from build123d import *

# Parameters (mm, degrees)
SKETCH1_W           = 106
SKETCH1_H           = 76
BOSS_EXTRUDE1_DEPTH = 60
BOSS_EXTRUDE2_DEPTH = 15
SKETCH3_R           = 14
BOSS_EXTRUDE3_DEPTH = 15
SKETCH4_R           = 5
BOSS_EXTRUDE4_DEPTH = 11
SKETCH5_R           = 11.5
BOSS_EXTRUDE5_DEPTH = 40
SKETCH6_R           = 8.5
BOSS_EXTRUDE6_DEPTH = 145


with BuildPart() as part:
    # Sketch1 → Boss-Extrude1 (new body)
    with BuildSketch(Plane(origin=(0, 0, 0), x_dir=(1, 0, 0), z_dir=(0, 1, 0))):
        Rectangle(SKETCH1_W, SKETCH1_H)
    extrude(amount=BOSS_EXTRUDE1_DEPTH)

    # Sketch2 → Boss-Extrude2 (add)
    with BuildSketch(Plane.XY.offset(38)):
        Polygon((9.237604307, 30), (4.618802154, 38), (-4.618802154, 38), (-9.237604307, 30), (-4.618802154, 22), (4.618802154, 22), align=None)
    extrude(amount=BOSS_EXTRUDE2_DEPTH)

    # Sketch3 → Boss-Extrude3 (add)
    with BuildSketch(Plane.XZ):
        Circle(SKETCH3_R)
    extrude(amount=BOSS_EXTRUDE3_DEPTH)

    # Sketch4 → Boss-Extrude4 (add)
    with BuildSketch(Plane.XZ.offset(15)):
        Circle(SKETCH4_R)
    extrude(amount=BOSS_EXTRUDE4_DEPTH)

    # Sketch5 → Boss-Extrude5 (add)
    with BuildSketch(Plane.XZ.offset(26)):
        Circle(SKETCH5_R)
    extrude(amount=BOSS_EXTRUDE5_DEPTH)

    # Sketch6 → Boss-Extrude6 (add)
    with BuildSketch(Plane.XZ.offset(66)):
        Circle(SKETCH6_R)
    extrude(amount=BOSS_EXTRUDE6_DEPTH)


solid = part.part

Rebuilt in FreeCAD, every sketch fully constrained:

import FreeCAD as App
import Part
import Sketcher
Q = App.Units.Quantity

doc = App.newDocument("Part")
body = doc.addObject("PartDesign::Body", "Body")

# Sketch on XZ plane
sketch1 = body.newObject("Sketcher::SketchObject", "Sketch")
sketch1.AttachmentSupport = (doc.getObject("XZ_Plane"), [""])
sketch1.MapMode = "FlatFace"
sketch1.addGeometry(Part.LineSegment(App.Vector(-53, -38, 0), App.Vector(-53, 38, 0)), False)
sketch1.addGeometry(Part.LineSegment(App.Vector(-53, 38, 0), App.Vector(53, 38, 0)), False)
sketch1.addGeometry(Part.LineSegment(App.Vector(53, 38, 0), App.Vector(53, -38, 0)), False)
sketch1.addGeometry(Part.LineSegment(App.Vector(53, -38, 0), App.Vector(-53, -38, 0)), False)
sketch1.addConstraint(Sketcher.Constraint("Coincident", 0, 2, 1, 1))
sketch1.addConstraint(Sketcher.Constraint("Coincident", 1, 2, 2, 1))
sketch1.addConstraint(Sketcher.Constraint("Coincident", 2, 2, 3, 1))
sketch1.addConstraint(Sketcher.Constraint("Coincident", 3, 2, 0, 1))
sketch1.addConstraint(Sketcher.Constraint("Vertical", 0))
sketch1.addConstraint(Sketcher.Constraint("Horizontal", 1))
sketch1.addConstraint(Sketcher.Constraint("Vertical", 2))
sketch1.addConstraint(Sketcher.Constraint("Horizontal", 3))
sketch1.addConstraint(Sketcher.Constraint("Symmetric", 0, 2, 2, 2, -1, 1))
sketch1.addConstraint(Sketcher.Constraint("DistanceX", 1, 1, 1, 2, 106.0))
sketch1.addConstraint(Sketcher.Constraint("DistanceY", 0, 1, 0, 2, 76.0))
pad1 = body.newObject("PartDesign::Pad", "Pad")
pad1.Profile = sketch1
pad1.Length = 60
pad1.Reversed = True

# Sketch on XY plane
sketch2 = body.newObject("Sketcher::SketchObject", "Sketch001")
sketch2.AttachmentSupport = (doc.getObject("XY_Plane"), [""])
sketch2.MapMode = "FlatFace"
sketch2.AttachmentOffset = App.Placement(App.Vector(0, 0, 38), App.Rotation())
sketch2.addGeometry(Part.LineSegment(App.Vector(9.237604, 30, 0), App.Vector(4.618802, 38, 0)), False)
sketch2.addGeometry(Part.LineSegment(App.Vector(4.618802, 38, 0), App.Vector(-4.618802, 38, 0)), False)
sketch2.addGeometry(Part.LineSegment(App.Vector(-4.618802, 38, 0), App.Vector(-9.237604, 30, 0)), False)
sketch2.addGeometry(Part.LineSegment(App.Vector(-9.237604, 30, 0), App.Vector(-4.618802, 22, 0)), False)
sketch2.addGeometry(Part.LineSegment(App.Vector(-4.618802, 22, 0), App.Vector(4.618802, 22, 0)), False)
sketch2.addGeometry(Part.LineSegment(App.Vector(4.618802, 22, 0), App.Vector(9.237604, 30, 0)), False)
sketch2.addConstraint(Sketcher.Constraint("Coincident", 0, 2, 1, 1))
sketch2.addConstraint(Sketcher.Constraint("Coincident", 1, 2, 2, 1))
sketch2.addConstraint(Sketcher.Constraint("Coincident", 2, 2, 3, 1))
sketch2.addConstraint(Sketcher.Constraint("Coincident", 3, 2, 4, 1))
sketch2.addConstraint(Sketcher.Constraint("Coincident", 4, 2, 5, 1))
sketch2.addConstraint(Sketcher.Constraint("Coincident", 5, 2, 0, 1))
sketch2.addConstraint(Sketcher.Constraint("Horizontal", 1))
sketch2.addConstraint(Sketcher.Constraint("Horizontal", 4))
sketch2.addConstraint(Sketcher.Constraint("Symmetric", 2, 2, 5, 2, -2))
sketch2.addConstraint(Sketcher.Constraint("Parallel", 0, 3))
sketch2.addConstraint(Sketcher.Constraint("Parallel", 2, 5))
sketch2.addConstraint(Sketcher.Constraint("Vertical", 1, 2, 3, 2))
sketch2.addConstraint(Sketcher.Constraint("Vertical", 0, 2, 4, 2))
sketch2.addConstraint(Sketcher.Constraint("Angle", 0, Q("120 deg")))
sketch2.addConstraint(Sketcher.Constraint("DistanceY", -1, 1, 0, 2, 38.0))
sketch2.addConstraint(Sketcher.Constraint("DistanceY", -1, 1, 2, 2, 30.0))
sketch2.addConstraint(Sketcher.Constraint("DistanceX", 1, 2, 1, 1, 9.237604))
pad2 = body.newObject("PartDesign::Pad", "Pad001")
pad2.Profile = sketch2
pad2.Length = 15

# Sketch on XZ plane
sketch3 = body.newObject("Sketcher::SketchObject", "Sketch002")
sketch3.AttachmentSupport = (doc.getObject("XZ_Plane"), [""])
sketch3.MapMode = "FlatFace"
sketch3.addGeometry(Part.Circle(App.Vector(0, 0, 0), App.Vector(0, 0, 1), 14), False)
sketch3.addConstraint(Sketcher.Constraint("Coincident", 0, 3, -1, 1))
sketch3.addConstraint(Sketcher.Constraint("Diameter", 0, 28.0))
pad3 = body.newObject("PartDesign::Pad", "Pad002")
pad3.Profile = sketch3
pad3.Length = 15

# Sketch on XZ plane
sketch4 = body.newObject("Sketcher::SketchObject", "Sketch003")
sketch4.AttachmentSupport = (doc.getObject("XZ_Plane"), [""])
sketch4.MapMode = "FlatFace"
sketch4.AttachmentOffset = App.Placement(App.Vector(0, 0, 15), App.Rotation())
sketch4.addGeometry(Part.Circle(App.Vector(0, 0, 0), App.Vector(0, 0, 1), 5), False)
sketch4.addConstraint(Sketcher.Constraint("Coincident", 0, 3, -1, 1))
sketch4.addConstraint(Sketcher.Constraint("Diameter", 0, 10.0))
pad4 = body.newObject("PartDesign::Pad", "Pad003")
pad4.Profile = sketch4
pad4.Length = 11

# Sketch on XZ plane
sketch5 = body.newObject("Sketcher::SketchObject", "Sketch004")
sketch5.AttachmentSupport = (doc.getObject("XZ_Plane"), [""])
sketch5.MapMode = "FlatFace"
sketch5.AttachmentOffset = App.Placement(App.Vector(0, 0, 26), App.Rotation())
sketch5.addGeometry(Part.Circle(App.Vector(0, 0, 0), App.Vector(0, 0, 1), 11.5), False)
sketch5.addConstraint(Sketcher.Constraint("Coincident", 0, 3, -1, 1))
sketch5.addConstraint(Sketcher.Constraint("Diameter", 0, 23.0))
pad5 = body.newObject("PartDesign::Pad", "Pad004")
pad5.Profile = sketch5
pad5.Length = 40

# Sketch on XZ plane
sketch6 = body.newObject("Sketcher::SketchObject", "Sketch005")
sketch6.AttachmentSupport = (doc.getObject("XZ_Plane"), [""])
sketch6.MapMode = "FlatFace"
sketch6.AttachmentOffset = App.Placement(App.Vector(0, 0, 66), App.Rotation())
sketch6.addGeometry(Part.Circle(App.Vector(0, 0, 0), App.Vector(0, 0, 1), 8.5), False)
sketch6.addConstraint(Sketcher.Constraint("Coincident", 0, 3, -1, 1))
sketch6.addConstraint(Sketcher.Constraint("Diameter", 0, 17.0))
pad6 = body.newObject("PartDesign::Pad", "Pad005")
pad6.Profile = sketch6
pad6.Length = 145

doc.recompute()
